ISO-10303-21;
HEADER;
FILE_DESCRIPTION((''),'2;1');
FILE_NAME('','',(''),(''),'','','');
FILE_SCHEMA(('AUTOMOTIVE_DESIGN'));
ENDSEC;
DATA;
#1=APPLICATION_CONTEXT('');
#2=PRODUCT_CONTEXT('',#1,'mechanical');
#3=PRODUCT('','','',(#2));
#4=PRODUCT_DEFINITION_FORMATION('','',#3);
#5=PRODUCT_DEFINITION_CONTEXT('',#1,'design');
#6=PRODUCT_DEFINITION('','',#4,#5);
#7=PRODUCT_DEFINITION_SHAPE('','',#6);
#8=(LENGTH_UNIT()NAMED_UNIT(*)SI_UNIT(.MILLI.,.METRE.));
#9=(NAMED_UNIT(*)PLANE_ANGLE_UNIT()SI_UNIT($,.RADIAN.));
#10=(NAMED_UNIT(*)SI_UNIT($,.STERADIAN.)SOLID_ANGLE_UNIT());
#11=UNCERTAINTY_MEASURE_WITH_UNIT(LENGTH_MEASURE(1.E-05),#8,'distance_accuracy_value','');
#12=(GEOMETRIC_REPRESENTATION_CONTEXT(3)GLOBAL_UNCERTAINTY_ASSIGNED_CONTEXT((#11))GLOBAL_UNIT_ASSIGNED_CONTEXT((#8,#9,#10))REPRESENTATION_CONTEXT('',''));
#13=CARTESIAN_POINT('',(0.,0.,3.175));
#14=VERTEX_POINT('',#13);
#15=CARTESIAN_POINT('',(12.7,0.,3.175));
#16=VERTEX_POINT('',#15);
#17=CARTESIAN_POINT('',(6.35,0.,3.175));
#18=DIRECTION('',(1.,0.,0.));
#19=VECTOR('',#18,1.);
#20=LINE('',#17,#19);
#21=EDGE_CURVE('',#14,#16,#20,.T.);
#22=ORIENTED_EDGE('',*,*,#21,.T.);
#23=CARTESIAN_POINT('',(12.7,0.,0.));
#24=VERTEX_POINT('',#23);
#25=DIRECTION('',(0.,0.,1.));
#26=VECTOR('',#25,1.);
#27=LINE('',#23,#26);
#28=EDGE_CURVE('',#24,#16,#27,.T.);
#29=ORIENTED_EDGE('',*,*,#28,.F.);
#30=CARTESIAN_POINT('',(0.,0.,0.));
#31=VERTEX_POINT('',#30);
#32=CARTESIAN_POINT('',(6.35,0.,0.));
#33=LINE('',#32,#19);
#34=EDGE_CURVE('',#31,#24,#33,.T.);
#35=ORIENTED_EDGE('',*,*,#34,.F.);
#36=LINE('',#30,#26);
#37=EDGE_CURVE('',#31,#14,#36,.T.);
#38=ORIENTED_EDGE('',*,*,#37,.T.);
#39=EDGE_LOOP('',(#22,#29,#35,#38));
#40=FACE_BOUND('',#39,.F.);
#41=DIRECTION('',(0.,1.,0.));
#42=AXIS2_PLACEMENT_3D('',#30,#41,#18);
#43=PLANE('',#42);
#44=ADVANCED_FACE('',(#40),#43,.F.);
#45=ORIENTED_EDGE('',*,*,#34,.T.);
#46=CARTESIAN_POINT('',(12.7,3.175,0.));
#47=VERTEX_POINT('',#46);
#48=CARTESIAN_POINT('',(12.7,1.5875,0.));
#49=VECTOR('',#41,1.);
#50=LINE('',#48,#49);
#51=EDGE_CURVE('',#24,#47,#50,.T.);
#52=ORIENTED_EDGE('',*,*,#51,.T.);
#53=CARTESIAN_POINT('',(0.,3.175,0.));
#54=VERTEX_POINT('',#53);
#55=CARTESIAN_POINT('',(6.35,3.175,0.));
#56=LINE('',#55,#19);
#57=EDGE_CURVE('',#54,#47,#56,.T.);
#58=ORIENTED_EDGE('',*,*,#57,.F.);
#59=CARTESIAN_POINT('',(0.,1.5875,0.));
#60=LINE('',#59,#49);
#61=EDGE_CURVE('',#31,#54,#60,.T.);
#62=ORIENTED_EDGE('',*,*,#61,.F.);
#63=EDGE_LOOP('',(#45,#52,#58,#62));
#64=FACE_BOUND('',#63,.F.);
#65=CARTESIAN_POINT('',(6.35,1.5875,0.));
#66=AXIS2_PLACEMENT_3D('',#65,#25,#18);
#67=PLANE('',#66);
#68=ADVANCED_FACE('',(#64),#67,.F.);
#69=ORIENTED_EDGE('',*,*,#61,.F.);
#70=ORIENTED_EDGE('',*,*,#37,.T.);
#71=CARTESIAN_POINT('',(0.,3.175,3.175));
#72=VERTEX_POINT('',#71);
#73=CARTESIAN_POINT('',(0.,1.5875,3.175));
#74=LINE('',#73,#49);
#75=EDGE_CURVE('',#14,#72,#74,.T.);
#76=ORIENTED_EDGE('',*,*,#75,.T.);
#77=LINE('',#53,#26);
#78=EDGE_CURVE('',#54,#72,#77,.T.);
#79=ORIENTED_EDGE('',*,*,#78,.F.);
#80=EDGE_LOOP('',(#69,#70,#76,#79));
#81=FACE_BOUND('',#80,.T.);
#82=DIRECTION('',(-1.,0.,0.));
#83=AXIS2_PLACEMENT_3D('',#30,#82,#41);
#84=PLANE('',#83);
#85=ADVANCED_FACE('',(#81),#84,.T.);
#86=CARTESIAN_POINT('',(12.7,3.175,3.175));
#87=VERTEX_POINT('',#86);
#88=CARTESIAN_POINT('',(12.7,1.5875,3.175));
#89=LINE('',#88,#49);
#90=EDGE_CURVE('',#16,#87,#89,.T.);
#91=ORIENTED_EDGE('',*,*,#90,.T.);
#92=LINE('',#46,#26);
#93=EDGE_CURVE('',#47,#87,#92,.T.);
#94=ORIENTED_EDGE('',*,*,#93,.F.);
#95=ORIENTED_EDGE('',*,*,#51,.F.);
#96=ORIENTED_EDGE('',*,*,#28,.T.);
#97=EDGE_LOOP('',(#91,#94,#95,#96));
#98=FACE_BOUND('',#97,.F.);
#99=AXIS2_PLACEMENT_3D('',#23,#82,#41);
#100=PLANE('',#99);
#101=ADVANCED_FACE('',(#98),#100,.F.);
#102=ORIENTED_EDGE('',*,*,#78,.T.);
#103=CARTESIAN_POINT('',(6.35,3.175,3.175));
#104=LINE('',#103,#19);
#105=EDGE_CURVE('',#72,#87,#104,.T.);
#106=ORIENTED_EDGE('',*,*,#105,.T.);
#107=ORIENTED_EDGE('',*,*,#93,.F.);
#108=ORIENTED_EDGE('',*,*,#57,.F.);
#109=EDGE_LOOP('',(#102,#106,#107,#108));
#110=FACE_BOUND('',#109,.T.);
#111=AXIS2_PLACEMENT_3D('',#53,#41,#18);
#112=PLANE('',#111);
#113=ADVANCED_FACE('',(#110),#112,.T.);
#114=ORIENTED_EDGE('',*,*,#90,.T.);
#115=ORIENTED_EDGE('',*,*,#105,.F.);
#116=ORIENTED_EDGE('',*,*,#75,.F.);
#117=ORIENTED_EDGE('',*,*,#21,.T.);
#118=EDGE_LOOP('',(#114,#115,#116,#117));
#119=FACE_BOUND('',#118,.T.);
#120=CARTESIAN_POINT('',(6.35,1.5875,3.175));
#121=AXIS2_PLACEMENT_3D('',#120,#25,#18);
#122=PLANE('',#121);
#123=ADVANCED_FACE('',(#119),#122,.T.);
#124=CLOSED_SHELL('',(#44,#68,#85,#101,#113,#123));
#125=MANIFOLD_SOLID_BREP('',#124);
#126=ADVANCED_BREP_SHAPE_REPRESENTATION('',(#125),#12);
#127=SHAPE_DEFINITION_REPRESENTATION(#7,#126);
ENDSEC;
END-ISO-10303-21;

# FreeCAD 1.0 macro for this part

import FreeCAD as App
import Part
import Sketcher

V = App.Vector
Q = App.Units.Quantity

doc = App.newDocument("Part")
params = doc.addObject("Spreadsheet::Sheet", "Params")
for row, (alias, value) in enumerate([
    ("sketch1_width", "0.5 in"),
    ("sketch1_height", "0.125 in"),
    ("pad1_length", "0.125 in"),
], start=1):
    params.set(f"A{row}", alias)
    params.set(f"B{row}", "=" + value)
    params.setAlias(f"B{row}", alias)

body = doc.addObject("PartDesign::Body", "Body")

# Sketch on XY plane
sketch1 = body.newObject("Sketcher::SketchObject", "Sketch")
sketch1.AttachmentSupport = (doc.getObject("XY_Plane"), [""])
sketch1.MapMode = "FlatFace"
sketch1.addGeometry([
    Part.LineSegment(V(0, 3.2, 0), V(0, 0, 0)),
    Part.LineSegment(V(0, 0, 0), V(12.7, 0, 0)),
    Part.LineSegment(V(12.7, 0, 0), V(12.7, 3.2, 0)),
    Part.LineSegment(V(12.7, 3.2, 0), V(0, 3.2, 0)),
], False)
sketch1.addConstraint([
    Sketcher.Constraint("Coincident", 0, 2, 1, 1),
    Sketcher.Constraint("Coincident", 1, 2, 2, 1),
    Sketcher.Constraint("Coincident", 2, 2, 3, 1),
    Sketcher.Constraint("Coincident", 3, 2, 0, 1),
    Sketcher.Constraint("Vertical", 0),
    Sketcher.Constraint("Horizontal", 1),
    Sketcher.Constraint("Vertical", 2),
    Sketcher.Constraint("Horizontal", 3),
    Sketcher.Constraint("Coincident", 0, 2, -1, 1),
    Sketcher.Constraint("DistanceX", 1, 1, 1, 2, Q("0.5 in")),
    Sketcher.Constraint("DistanceY", 0, 2, 0, 1, Q("0.125 in")),
])
sketch1.setExpression("Constraints[9]", "Params.sketch1_width")
sketch1.setExpression("Constraints[10]", "Params.sketch1_height")
pad1 = body.newObject("PartDesign::Pad", "Pad")
pad1.Profile = sketch1
pad1.setExpression("Length", "Params.pad1_length")

doc.recompute()
